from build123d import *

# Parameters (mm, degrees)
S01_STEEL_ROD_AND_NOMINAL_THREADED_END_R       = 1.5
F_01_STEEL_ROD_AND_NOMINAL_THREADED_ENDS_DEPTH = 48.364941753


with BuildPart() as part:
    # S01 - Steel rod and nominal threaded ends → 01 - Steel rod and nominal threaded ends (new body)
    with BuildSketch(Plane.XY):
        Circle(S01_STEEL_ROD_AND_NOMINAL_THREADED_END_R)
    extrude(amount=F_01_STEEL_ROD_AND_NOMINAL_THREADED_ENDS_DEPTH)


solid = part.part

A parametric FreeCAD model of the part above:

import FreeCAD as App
import Part
import Sketcher
Q = App.Units.Quantity

doc = App.newDocument("Part")
body = doc.addObject("PartDesign::Body", "Body")

sketch1 = body.newObject("Sketcher::SketchObject", "Sketch")
sketch1.AttachmentSupport = (doc.getObject("XY_Plane"), [""])
sketch1.MapMode = "FlatFace"
sketch1.addGeometry(Part.Circle(App.Vector(0, 0, 0), App.Vector(0, 0, 1), 1.5), False)
sketch1.addConstraint([
    Sketcher.Constraint("Coincident", 0, 3, -1, 1),
    Sketcher.Constraint("Diameter", 0, Q("3 mm")),
])
pad1 = body.newObject("PartDesign::Pad", "Pad")
pad1.Profile = sketch1
pad1.Length = 48.364942

doc.recompute()
